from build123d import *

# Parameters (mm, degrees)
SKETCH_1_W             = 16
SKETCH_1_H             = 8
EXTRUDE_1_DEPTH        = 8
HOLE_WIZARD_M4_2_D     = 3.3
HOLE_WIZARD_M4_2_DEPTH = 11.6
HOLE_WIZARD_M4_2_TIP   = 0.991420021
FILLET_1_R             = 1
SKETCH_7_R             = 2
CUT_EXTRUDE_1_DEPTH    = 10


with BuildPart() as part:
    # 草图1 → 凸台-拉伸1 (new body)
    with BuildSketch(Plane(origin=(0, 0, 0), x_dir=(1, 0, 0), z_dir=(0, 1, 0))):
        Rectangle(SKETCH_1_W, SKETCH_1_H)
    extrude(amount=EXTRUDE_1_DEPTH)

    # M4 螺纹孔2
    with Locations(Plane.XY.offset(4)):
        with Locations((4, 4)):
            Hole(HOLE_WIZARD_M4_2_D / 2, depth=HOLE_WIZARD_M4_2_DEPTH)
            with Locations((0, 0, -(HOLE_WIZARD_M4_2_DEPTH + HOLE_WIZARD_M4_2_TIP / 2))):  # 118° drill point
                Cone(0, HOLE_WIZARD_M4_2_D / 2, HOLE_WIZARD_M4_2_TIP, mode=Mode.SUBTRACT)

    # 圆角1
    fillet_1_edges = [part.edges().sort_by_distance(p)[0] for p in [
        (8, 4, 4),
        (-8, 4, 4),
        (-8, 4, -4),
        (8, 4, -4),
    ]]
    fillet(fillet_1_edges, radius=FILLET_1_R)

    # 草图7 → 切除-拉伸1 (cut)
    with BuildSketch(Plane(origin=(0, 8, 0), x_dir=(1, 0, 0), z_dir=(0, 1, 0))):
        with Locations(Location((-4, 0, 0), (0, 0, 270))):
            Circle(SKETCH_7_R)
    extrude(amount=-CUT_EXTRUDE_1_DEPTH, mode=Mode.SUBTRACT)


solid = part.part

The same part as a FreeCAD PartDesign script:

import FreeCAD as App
import Part
import Sketcher
from FreeCAD import Vector


def edges_at(feature, points):
    """Names of the edges that pass closest to the given points."""
    edges = feature.Shape.Edges
    near = lambda p: min(range(len(edges)), key=lambda i: edges[i].distToShape(Part.Vertex(*p))[0])
    return sorted({f"Edge{near(p) + 1}" for p in points})

doc = App.newDocument("Part")
params = doc.addObject("Spreadsheet::Sheet", "Params")
for row, (alias, value) in enumerate([
    ("sketch1_width", "16 mm"),
    ("sketch1_height", "8 mm"),
    ("pad1_length", "8 mm"),
    ("sketch2_diameter", "3.3 mm"),
    ("hole_diameter", "3.3 mm"),
    ("hole_depth", "11.6 mm"),
    ("fillet_radius", "1 mm"),
    ("sketch3_diameter", "4 mm"),
    ("pocket1_length", "10 mm"),
], start=1):
    params.set(f"A{row}", alias)
    params.set(f"B{row}", "=" + value)
    params.setAlias(f"B{row}", alias)

body = doc.addObject("PartDesign::Body", "Body")

# Sketch on XZ plane
sketch1 = doc.addObject("Sketcher::SketchObject", "Sketch")
body.addObject(sketch1)
sketch1.AttachmentSupport = (doc.XZ_Plane, [""])
sketch1.MapMode = "FlatFace"
sketch1.addGeometry([
    Part.LineSegment(Vector(-8, -4, 0), Vector(-8, 4, 0)),
    Part.LineSegment(Vector(-8, 4, 0), Vector(8, 4, 0)),
    Part.LineSegment(Vector(8, 4, 0), Vector(8, -4, 0)),
    Part.LineSegment(Vector(8, -4, 0), Vector(-8, -4, 0)),
], False)
sketch1.addConstraint([
    Sketcher.Constraint("Coincident", 0, 2, 1, 1),
    Sketcher.Constraint("Coincident", 1, 2, 2, 1),
    Sketcher.Constraint("Coincident", 2, 2, 3, 1),
    Sketcher.Constraint("Coincident", 3, 2, 0, 1),
    Sketcher.Constraint("Vertical", 0),
    Sketcher.Constraint("Horizontal", 1),
    Sketcher.Constraint("Vertical", 2),
    Sketcher.Constraint("Horizontal", 3),
    Sketcher.Constraint("Symmetric", 0, 2, 2, 2, -1, 1),
    Sketcher.Constraint("DistanceX", 1, 1, 1, 2, 16.0),
    Sketcher.Constraint("DistanceY", 0, 1, 0, 2, 8.0),
])
sketch1.setExpression("Constraints[9]", "Params.sketch1_width")
sketch1.setExpression("Constraints[10]", "Params.sketch1_height")
pad1 = doc.addObject("PartDesign::Pad", "Pad")
body.addObject(pad1)
pad1.Profile = sketch1
pad1.setExpression("Length", "Params.pad1_length")
pad1.Reversed = True

# Sketch on XY plane
sketch2 = doc.addObject("Sketcher::SketchObject", "Sketch001")
body.addObject(sketch2)
sketch2.AttachmentSupport = (doc.XY_Plane, [""])
sketch2.MapMode = "FlatFace"
sketch2.AttachmentOffset = App.Placement(Vector(0, 0, 4), App.Rotation())
sketch2.addGeometry(Part.Circle(Vector(4, 4, 0), Vector(0, 0, 1), 1.6), False)
sketch2.addConstraint([
    Sketcher.Constraint("Diameter", 0, 3.3),
    Sketcher.Constraint("DistanceX", -1, 1, 0, 3, 4.0),
    Sketcher.Constraint("DistanceY", -1, 1, 0, 3, 4.0),
])
sketch2.setExpression("Constraints[0]", "Params.sketch2_diameter")
doc.recompute()
hole = doc.addObject("PartDesign::Hole", "Hole")
body.addObject(hole)
hole.Profile = sketch2
hole.ThreadType = "None"
hole.setExpression("Diameter", "Params.hole_diameter")
hole.DepthType = "Dimension"
hole.setExpression("Depth", "Params.hole_depth")
hole.DrillPoint = "Angled"
hole.DrillPointAngle = 118
doc.recompute()

fillet = doc.addObject("PartDesign::Fillet", "Fillet")
body.addObject(fillet)
fillet.Base = (hole, edges_at(hole, [
    (8, 4, 4),
    (-8, 4, 4),
    (-8, 4, -4),
    (8, 4, -4),
]))
fillet.setExpression("Radius", "Params.fillet_radius")

# Sketch on XZ plane
sketch3 = doc.addObject("Sketcher::SketchObject", "Sketch002")
body.addObject(sketch3)
sketch3.AttachmentSupport = (doc.XZ_Plane, [""])
sketch3.MapMode = "FlatFace"
sketch3.AttachmentOffset = App.Placement(Vector(0, 0, -8), App.Rotation())
sketch3.addGeometry(Part.Circle(Vector(-4, 0, 0), Vector(0, 0, 1), 2), False)
sketch3.addConstraint([
    Sketcher.Constraint("PointOnObject", 0, 3, -1),
    Sketcher.Constraint("Diameter", 0, 4.0),
    Sketcher.Constraint("DistanceX", 0, 3, -1, 1, 4.0),
])
sketch3.setExpression("Constraints[1]", "Params.sketch3_diameter")
pocket1 = doc.addObject("PartDesign::Pocket", "Pocket")
body.addObject(pocket1)
pocket1.Profile = sketch3
pocket1.setExpression("Length", "Params.pocket1_length")
pocket1.Reversed = True

doc.recompute()
